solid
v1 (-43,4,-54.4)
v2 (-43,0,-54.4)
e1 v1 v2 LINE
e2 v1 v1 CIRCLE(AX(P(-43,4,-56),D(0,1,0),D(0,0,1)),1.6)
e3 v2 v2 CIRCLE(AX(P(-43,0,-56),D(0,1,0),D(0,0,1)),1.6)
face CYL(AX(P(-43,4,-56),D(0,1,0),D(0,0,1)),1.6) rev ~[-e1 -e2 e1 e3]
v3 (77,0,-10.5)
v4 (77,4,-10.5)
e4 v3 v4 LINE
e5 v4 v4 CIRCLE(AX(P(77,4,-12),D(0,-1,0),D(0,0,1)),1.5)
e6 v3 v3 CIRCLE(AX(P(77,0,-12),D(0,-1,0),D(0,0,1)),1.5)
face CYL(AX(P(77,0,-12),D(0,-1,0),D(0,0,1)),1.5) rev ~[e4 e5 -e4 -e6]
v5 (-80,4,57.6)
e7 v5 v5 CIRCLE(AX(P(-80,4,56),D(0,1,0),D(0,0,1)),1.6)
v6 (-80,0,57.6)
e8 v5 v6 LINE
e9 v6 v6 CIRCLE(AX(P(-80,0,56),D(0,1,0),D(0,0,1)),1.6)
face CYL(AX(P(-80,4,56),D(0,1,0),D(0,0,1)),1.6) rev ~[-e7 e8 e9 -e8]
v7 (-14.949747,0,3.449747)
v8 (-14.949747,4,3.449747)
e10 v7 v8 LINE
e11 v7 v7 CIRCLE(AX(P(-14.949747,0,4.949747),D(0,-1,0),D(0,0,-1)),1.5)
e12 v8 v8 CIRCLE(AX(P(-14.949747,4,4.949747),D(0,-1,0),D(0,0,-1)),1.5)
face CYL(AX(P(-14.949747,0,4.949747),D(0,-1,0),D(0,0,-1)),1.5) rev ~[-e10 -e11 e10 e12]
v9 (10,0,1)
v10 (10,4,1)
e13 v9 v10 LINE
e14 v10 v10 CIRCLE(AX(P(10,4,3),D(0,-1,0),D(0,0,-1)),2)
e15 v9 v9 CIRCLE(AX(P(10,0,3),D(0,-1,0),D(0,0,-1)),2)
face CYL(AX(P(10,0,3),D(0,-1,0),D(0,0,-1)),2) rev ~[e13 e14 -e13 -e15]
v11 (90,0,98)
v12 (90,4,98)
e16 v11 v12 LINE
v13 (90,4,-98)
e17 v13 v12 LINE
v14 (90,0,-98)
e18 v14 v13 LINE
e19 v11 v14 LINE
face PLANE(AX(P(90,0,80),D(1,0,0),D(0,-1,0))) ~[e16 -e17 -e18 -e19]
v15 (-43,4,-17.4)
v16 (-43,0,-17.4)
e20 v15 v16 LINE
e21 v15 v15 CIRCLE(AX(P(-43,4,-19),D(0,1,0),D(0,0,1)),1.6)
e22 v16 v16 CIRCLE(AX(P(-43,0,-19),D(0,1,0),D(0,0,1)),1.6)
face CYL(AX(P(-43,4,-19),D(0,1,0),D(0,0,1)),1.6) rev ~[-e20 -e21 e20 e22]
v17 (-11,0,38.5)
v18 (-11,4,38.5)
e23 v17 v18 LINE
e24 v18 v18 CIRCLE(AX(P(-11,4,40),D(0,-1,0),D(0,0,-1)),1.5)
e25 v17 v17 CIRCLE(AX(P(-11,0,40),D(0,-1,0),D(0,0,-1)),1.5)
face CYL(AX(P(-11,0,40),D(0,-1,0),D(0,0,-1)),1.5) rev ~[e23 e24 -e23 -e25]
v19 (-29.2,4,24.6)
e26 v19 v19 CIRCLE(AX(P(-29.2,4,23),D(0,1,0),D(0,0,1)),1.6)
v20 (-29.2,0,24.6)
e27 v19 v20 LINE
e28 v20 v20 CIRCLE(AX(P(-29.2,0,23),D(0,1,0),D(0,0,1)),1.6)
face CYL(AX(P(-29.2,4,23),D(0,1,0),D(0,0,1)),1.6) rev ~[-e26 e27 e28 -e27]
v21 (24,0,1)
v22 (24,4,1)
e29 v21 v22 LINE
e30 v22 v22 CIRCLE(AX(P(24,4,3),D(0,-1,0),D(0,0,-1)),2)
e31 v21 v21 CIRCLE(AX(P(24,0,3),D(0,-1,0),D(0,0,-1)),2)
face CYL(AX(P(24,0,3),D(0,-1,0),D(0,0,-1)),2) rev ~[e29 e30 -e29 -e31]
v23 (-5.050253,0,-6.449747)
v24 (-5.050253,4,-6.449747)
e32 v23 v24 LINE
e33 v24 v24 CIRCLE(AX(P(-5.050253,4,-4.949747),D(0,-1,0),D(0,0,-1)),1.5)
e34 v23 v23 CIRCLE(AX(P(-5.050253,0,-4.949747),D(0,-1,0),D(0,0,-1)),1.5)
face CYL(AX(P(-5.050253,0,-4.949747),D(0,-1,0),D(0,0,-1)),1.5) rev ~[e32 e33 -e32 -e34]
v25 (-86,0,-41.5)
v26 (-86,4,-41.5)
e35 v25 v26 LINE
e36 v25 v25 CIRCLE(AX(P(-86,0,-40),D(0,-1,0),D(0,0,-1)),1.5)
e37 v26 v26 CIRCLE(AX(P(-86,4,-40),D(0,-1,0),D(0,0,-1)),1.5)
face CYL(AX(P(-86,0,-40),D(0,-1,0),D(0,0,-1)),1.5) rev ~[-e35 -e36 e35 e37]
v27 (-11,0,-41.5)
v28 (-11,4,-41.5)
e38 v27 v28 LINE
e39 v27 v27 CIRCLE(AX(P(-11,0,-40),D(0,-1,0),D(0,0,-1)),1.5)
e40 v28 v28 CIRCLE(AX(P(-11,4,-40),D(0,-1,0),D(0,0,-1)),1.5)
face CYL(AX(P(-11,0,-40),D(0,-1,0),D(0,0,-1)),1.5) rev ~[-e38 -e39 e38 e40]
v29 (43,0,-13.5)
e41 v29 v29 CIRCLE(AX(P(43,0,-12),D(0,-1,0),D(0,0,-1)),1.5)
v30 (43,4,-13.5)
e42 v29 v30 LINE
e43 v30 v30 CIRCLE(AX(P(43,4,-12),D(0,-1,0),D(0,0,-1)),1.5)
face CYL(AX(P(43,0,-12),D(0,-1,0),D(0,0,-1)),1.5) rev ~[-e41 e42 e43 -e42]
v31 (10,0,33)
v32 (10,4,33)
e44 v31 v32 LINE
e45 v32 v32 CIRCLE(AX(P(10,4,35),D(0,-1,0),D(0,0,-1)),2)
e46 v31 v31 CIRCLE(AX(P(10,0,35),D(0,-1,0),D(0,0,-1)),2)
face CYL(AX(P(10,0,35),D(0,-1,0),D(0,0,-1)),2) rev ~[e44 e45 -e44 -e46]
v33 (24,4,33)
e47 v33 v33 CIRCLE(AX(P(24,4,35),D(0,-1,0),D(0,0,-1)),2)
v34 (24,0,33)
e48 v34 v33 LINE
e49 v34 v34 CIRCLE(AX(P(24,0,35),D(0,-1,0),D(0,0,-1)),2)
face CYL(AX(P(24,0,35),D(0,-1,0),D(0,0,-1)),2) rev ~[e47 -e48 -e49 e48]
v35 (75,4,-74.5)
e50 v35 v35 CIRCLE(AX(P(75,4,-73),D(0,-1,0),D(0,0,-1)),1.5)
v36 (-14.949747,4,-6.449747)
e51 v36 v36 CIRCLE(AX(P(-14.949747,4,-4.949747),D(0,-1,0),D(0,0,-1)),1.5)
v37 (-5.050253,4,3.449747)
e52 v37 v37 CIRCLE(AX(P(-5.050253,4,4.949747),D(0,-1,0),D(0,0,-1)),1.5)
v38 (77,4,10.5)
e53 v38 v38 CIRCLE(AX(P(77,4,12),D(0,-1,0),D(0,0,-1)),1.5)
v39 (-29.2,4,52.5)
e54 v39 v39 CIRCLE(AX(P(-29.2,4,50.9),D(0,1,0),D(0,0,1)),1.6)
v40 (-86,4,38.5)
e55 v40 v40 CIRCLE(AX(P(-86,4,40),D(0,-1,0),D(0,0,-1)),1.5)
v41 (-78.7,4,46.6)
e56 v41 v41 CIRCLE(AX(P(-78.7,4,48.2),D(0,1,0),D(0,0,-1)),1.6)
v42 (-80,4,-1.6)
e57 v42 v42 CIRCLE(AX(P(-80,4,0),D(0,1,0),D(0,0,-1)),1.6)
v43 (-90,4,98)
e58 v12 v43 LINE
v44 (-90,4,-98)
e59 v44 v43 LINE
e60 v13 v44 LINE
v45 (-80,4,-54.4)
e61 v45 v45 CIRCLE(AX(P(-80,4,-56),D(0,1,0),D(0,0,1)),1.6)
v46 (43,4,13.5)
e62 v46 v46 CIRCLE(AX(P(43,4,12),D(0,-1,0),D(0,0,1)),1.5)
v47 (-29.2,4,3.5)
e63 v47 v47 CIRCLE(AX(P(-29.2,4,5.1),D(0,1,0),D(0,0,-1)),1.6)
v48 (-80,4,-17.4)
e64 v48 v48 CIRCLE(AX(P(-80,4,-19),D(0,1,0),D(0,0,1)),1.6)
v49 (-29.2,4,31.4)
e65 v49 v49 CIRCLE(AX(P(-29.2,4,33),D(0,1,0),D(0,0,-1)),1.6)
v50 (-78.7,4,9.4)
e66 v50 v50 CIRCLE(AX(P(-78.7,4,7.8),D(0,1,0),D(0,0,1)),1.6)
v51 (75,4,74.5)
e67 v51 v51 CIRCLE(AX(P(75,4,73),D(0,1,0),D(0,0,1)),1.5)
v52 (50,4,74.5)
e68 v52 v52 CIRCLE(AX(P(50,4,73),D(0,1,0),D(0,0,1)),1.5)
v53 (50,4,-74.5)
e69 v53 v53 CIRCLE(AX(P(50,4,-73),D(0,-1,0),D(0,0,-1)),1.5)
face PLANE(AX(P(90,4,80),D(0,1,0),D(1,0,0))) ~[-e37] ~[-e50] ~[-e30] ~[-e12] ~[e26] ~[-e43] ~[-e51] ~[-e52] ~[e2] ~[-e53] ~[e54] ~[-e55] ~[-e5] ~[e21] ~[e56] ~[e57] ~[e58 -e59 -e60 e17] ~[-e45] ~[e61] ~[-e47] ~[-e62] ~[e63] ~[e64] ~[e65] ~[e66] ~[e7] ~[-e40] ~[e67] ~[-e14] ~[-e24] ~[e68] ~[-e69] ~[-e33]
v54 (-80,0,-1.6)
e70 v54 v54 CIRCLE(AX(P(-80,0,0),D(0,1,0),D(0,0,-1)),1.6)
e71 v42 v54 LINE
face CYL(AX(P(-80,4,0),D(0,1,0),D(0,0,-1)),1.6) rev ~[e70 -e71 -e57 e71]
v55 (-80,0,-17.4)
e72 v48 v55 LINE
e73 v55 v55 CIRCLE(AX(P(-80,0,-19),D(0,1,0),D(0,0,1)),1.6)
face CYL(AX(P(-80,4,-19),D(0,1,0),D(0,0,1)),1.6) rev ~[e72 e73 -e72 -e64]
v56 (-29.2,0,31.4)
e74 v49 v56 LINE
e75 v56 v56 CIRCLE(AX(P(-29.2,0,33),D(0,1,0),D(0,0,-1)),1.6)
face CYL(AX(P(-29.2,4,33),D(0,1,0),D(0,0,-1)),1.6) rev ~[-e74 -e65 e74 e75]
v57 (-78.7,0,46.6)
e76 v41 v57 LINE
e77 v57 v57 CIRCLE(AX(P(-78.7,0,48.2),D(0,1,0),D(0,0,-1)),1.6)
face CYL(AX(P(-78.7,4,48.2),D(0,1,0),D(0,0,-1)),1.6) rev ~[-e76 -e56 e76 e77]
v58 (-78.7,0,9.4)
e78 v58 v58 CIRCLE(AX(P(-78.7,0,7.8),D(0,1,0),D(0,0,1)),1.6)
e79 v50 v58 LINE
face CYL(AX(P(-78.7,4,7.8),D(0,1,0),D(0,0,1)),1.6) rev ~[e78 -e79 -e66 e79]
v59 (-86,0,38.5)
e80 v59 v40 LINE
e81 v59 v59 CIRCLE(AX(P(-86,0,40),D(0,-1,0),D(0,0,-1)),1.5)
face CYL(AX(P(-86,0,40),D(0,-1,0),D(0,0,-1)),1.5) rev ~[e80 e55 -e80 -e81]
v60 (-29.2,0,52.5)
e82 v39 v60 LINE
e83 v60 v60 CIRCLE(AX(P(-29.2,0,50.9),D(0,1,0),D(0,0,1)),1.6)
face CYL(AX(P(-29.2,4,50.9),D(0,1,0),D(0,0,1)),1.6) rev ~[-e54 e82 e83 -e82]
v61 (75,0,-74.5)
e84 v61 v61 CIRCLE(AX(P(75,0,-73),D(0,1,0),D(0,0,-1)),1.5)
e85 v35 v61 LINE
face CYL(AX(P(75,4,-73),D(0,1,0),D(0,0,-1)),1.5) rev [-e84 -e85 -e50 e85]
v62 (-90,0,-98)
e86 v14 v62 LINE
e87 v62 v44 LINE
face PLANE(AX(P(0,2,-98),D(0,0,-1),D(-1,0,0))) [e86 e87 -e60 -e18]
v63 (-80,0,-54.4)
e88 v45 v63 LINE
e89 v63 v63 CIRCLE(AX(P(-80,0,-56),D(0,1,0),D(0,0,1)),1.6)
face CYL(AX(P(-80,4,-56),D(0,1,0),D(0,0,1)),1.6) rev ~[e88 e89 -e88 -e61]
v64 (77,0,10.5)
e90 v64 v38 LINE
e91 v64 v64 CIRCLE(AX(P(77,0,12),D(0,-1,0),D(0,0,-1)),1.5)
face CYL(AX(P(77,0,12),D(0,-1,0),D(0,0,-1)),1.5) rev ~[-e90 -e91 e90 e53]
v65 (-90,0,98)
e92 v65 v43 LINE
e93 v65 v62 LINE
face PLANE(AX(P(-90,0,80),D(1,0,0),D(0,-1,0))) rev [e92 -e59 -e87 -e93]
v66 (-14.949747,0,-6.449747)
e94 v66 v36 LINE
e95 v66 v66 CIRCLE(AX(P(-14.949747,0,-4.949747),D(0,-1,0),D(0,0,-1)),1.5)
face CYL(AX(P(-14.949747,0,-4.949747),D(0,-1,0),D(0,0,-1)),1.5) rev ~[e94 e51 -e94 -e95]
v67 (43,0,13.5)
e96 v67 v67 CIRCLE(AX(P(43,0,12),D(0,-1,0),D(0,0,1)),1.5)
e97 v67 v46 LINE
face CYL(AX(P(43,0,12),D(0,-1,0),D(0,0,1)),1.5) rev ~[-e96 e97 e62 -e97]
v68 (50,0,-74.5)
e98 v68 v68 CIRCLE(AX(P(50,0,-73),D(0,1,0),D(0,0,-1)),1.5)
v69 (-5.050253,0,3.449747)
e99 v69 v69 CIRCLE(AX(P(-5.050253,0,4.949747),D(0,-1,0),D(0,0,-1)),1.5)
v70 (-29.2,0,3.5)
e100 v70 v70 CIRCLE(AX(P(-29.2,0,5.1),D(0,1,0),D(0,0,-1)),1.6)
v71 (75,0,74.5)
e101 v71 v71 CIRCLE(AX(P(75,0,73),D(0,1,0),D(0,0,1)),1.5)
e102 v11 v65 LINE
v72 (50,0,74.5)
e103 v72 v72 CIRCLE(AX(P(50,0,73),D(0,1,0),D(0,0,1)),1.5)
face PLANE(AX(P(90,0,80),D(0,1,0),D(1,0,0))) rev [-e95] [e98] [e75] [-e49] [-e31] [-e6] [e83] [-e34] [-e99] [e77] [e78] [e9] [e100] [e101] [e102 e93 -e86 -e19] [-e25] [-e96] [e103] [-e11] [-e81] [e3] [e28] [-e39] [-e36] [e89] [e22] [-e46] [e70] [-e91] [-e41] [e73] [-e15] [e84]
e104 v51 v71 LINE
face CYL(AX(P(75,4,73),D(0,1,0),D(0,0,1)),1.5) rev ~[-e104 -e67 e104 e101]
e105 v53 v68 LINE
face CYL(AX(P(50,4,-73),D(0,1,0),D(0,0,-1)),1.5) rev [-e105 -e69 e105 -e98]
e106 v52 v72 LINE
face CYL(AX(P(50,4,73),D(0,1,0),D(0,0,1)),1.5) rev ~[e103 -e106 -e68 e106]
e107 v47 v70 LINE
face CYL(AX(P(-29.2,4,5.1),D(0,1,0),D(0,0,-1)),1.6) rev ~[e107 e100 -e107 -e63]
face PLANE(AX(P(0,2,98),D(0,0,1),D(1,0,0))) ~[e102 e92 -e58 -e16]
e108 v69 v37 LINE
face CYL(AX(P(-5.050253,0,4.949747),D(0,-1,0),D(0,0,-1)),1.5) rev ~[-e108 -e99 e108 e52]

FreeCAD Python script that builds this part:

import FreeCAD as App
import Part
import Sketcher

V = App.Vector


def add_polygon(sketch, points):
    """Adds a closed chain of lines whose ends are joined by coincident constraints."""
    first, n = sketch.GeometryCount, len(points)
    for a, b in zip(points, points[1:] + points[:1]):
        sketch.addGeometry(Part.LineSegment(App.Vector(*a, 0), App.Vector(*b, 0)), False)
    for i in range(n):
        sketch.addConstraint(Sketcher.Constraint("Coincident", first + i, 2, first + (i + 1) % n, 1))

doc = App.newDocument("Part")
body = doc.addObject("PartDesign::Body", "Body")

# Sketch on XZ plane
sketch1 = body.newObject("Sketcher::SketchObject", "Sketch")
sketch1.AttachmentSupport = (doc.getObject("XZ_Plane"), [""])
sketch1.MapMode = "FlatFace"
add_polygon(sketch1, [(-90, -80), (-90, 80), (90, 80), (90, -80)])  # lines 0-3
sketch1.addConstraint([
    Sketcher.Constraint("Vertical", 0),
    Sketcher.Constraint("Horizontal", 1),
    Sketcher.Constraint("Vertical", 2),
    Sketcher.Constraint("Horizontal", 3),
    Sketcher.Constraint("Symmetric", 0, 2, 2, 2, -1, 1),
    Sketcher.Constraint("DistanceX", 1, 1, 1, 2, 180.0),
    Sketcher.Constraint("DistanceY", 0, 1, 0, 2, 160.0),
])
pad1 = body.newObject("PartDesign::Pad", "Pad")
pad1.Profile = sketch1
pad1.Length = 4
pad1.Reversed = True

# Sketch on XZ plane
sketch2 = body.newObject("Sketcher::SketchObject", "Sketch001")
sketch2.AttachmentSupport = (doc.getObject("XZ_Plane"), [""])
sketch2.MapMode = "FlatFace"
sketch2.AttachmentOffset = App.Placement(V(0, 0, -4), App.Rotation())
sketch2.addGeometry([
    Part.Circle(V(-80, -56, 0), V(0, 0, 1), 1.6),
    Part.Circle(V(-43, -56, 0), V(0, 0, 1), 1.6),
    Part.Circle(V(-43, -19, 0), V(0, 0, 1), 1.6),
    Part.Circle(V(-80, -19, 0), V(0, 0, 1), 1.6),
], False)
sketch2.addConstraint([
    Sketcher.Constraint("Equal", 0, 1),
    Sketcher.Constraint("Equal", 1, 2),
    Sketcher.Constraint("Equal", 2, 3),
    Sketcher.Constraint("Horizontal", 0, 3, 1, 3),
    Sketcher.Constraint("Horizontal", 2, 3, 3, 3),
    Sketcher.Constraint("Vertical", 1, 3, 2, 3),
    Sketcher.Constraint("Vertical", 0, 3, 3, 3),
    Sketcher.Constraint("Diameter", 0, 3.2),
    Sketcher.Constraint("DistanceX", 0, 3, -1, 1, 80.0),
    Sketcher.Constraint("DistanceY", 0, 3, -1, 1, 56.0),
    Sketcher.Constraint("DistanceX", 1, 3, -1, 1, 43.0),
    Sketcher.Constraint("DistanceY", 2, 3, -1, 1, 19.0),
])
pocket1 = body.newObject("PartDesign::Pocket", "Pocket")
pocket1.Profile = sketch2
pocket1.Length = 4
pocket1.Reversed = True

# Sketch on XZ plane
sketch3 = body.newObject("Sketcher::SketchObject", "Sketch002")
sketch3.AttachmentSupport = (doc.getObject("XZ_Plane"), [""])
sketch3.MapMode = "FlatFace"
sketch3.AttachmentOffset = App.Placement(V(0, 0, -4), App.Rotation())
sketch3.addGeometry([
    Part.Circle(V(-78.7, 7.8, 0), V(0, 0, 1), 1.6),  # 0
    Part.Circle(V(-29.2, 23, 0), V(0, 0, 1), 1.6),  # 1
    Part.Circle(V(-29.2, 50.9, 0), V(0, 0, 1), 1.6),  # 2
    Part.Circle(V(-80, 56, 0), V(0, 0, 1), 1.6),  # 3
    Part.Circle(V(-29.2, 5.1, 0), V(0, 0, 1), 1.6),  # 4
    Part.Circle(V(-29.2, 33, 0), V(0, 0, 1), 1.6),  # 5
    Part.Circle(V(-80, 0, 0), V(0, 0, 1), 1.6),  # 6
    Part.Circle(V(-78.7, 48.2, 0), V(0, 0, 1), 1.6),  # 7
], False)
sketch3.addConstraint([
    Sketcher.Constraint("Equal", 0, 1),
    Sketcher.Constraint("Equal", 1, 2),
    Sketcher.Constraint("Equal", 2, 3),
    Sketcher.Constraint("Equal", 3, 4),
    Sketcher.Constraint("Equal", 4, 5),
    Sketcher.Constraint("Equal", 5, 6),
    Sketcher.Constraint("Equal", 6, 7),
    Sketcher.Constraint("PointOnObject", 6, 3, -1),
    Sketcher.Constraint("Vertical", 1, 3, 2, 3),
    Sketcher.Constraint("Vertical", 2, 3, 4, 3),
    Sketcher.Constraint("Vertical", 4, 3, 5, 3),
    Sketcher.Constraint("Vertical", 3, 3, 6, 3),
    Sketcher.Constraint("Vertical", 0, 3, 7, 3),
    Sketcher.Constraint("Diameter", 0, 3.2),
    Sketcher.Constraint("DistanceY", -1, 1, 1, 3, 23.0),
    Sketcher.Constraint("DistanceX", 3, 3, -1, 1, 80.0),
    Sketcher.Constraint("DistanceY", -1, 1, 3, 3, 56.0),
    Sketcher.Constraint("DistanceY", -1, 1, 5, 3, 33.0),
    Sketcher.Constraint("DistanceX", 0, 3, -1, 1, 78.7),
    Sketcher.Constraint("DistanceY", -1, 1, 0, 3, 7.8),
    Sketcher.Constraint("DistanceX", 1, 3, -1, 1, 29.2),
    Sketcher.Constraint("DistanceY", -1, 1, 2, 3, 50.9),
    Sketcher.Constraint("DistanceY", -1, 1, 4, 3, 5.1),
    Sketcher.Constraint("DistanceY", -1, 1, 7, 3, 48.2),
])
pocket2 = body.newObject("PartDesign::Pocket", "Pocket001")
pocket2.Profile = sketch3
pocket2.Length = 4
pocket2.Reversed = True

# Sketch on XZ plane
sketch4 = body.newObject("Sketcher::SketchObject", "Sketch003")
sketch4.AttachmentSupport = (doc.getObject("XZ_Plane"), [""])
sketch4.MapMode = "FlatFace"
sketch4.addGeometry([
    Part.Circle(V(24, 35, 0), V(0, 0, 1), 2),
    Part.Circle(V(10, 35, 0), V(0, 0, 1), 2),
    Part.Circle(V(24, 3, 0), V(0, 0, 1), 2),
    Part.Circle(V(10, 3, 0), V(0, 0, 1), 2),
], False)
sketch4.addConstraint([
    Sketcher.Constraint("Equal", 0, 1),
    Sketcher.Constraint("Equal", 1, 2),
    Sketcher.Constraint("Equal", 2, 3),
    Sketcher.Constraint("Horizontal", 0, 3, 1, 3),
    Sketcher.Constraint("Horizontal", 2, 3, 3, 3),
    Sketcher.Constraint("Vertical", 0, 3, 2, 3),
    Sketcher.Constraint("Vertical", 1, 3, 3, 3),
    Sketcher.Constraint("Diameter", 0, 4.0),
    Sketcher.Constraint("DistanceX", -1, 1, 0, 3, 24.0),
    Sketcher.Constraint("DistanceY", -1, 1, 0, 3, 35.0),
    Sketcher.Constraint("DistanceX", -1, 1, 1, 3, 10.0),
    Sketcher.Constraint("DistanceY", -1, 1, 2, 3, 3.0),
])
pocket3 = body.newObject("PartDesign::Pocket", "Pocket002")
pocket3.Profile = sketch4
pocket3.Length = 10

# Sketch on XZ plane
sketch5 = body.newObject("Sketcher::SketchObject", "Sketch004")
sketch5.AttachmentSupport = (doc.getObject("XZ_Plane"), [""])
sketch5.MapMode = "FlatFace"
sketch5.addGeometry([
    Part.Circle(V(-14.949747, 4.949747, 0), V(0, 0, 1), 1.5),
    Part.Circle(V(-5.050253, 4.949747, 0), V(0, 0, 1), 1.5),
    Part.Circle(V(-14.949747, -4.949747, 0), V(0, 0, 1), 1.5),
    Part.Circle(V(-5.050253, -4.949747, 0), V(0, 0, 1), 1.5),
], False)
sketch5.addConstraint([
    Sketcher.Constraint("Equal", 0, 1),
    Sketcher.Constraint("Equal", 1, 2),
    Sketcher.Constraint("Equal", 2, 3),
    Sketcher.Constraint("Symmetric", 0, 3, 2, 3, -1),
    Sketcher.Constraint("Symmetric", 1, 3, 3, 3, -1),
    Sketcher.Constraint("Horizontal", 0, 3, 1, 3),
    Sketcher.Constraint("Diameter", 0, 3.0),
    Sketcher.Constraint("DistanceX", 0, 3, -1, 1, 14.949747),
    Sketcher.Constraint("DistanceY", -1, 1, 0, 3, 4.949747),
    Sketcher.Constraint("DistanceX", 1, 3, -1, 1, 5.050253),
])
pocket4 = body.newObject("PartDesign::Pocket", "Pocket003")
pocket4.Profile = sketch5
pocket4.Length = 10

# Sketch on XZ plane
sketch6 = body.newObject("Sketcher::SketchObject", "Sketch005")
sketch6.AttachmentSupport = (doc.getObject("XZ_Plane"), [""])
sketch6.MapMode = "FlatFace"
sketch6.addGeometry([
    Part.Circle(V(77, 12, 0), V(0, 0, 1), 1.5),
    Part.Circle(V(43, 12, 0), V(0, 0, 1), 1.5),
    Part.Circle(V(77, -12, 0), V(0, 0, 1), 1.5),
    Part.Circle(V(43, -12, 0), V(0, 0, 1), 1.5),
], False)
sketch6.addConstraint([
    Sketcher.Constraint("Equal", 0, 1),
    Sketcher.Constraint("Equal", 1, 2),
    Sketcher.Constraint("Equal", 2, 3),
    Sketcher.Constraint("Symmetric", 0, 3, 2, 3, -1),
    Sketcher.Constraint("Symmetric", 1, 3, 3, 3, -1),
    Sketcher.Constraint("Horizontal", 0, 3, 1, 3),
    Sketcher.Constraint("Diameter", 0, 3.0),
    Sketcher.Constraint("DistanceX", -1, 1, 0, 3, 77.0),
    Sketcher.Constraint("DistanceY", -1, 1, 0, 3, 12.0),
    Sketcher.Constraint("DistanceX", -1, 1, 1, 3, 43.0),
])
pocket5 = body.newObject("PartDesign::Pocket", "Pocket004")
pocket5.Profile = sketch6
pocket5.Length = 4

# Sketch on XZ plane
sketch7 = body.newObject("Sketcher::SketchObject", "Sketch006")
sketch7.AttachmentSupport = (doc.getObject("XZ_Plane"), [""])
sketch7.MapMode = "FlatFace"
sketch7.addGeometry([
    Part.Circle(V(-86, 40, 0), V(0, 0, 1), 1.5),
    Part.Circle(V(-11, 40, 0), V(0, 0, 1), 1.5),
    Part.Circle(V(-11, -40, 0), V(0, 0, 1), 1.5),
    Part.Circle(V(-86, -40, 0), V(0, 0, 1), 1.5),
], False)
sketch7.addConstraint([
    Sketcher.Constraint("Equal", 0, 1),
    Sketcher.Constraint("Equal", 1, 2),
    Sketcher.Constraint("Equal", 2, 3),
    Sketcher.Constraint("Symmetric", 1, 3, 2, 3, -1),
    Sketcher.Constraint("Symmetric", 0, 3, 3, 3, -1),
    Sketcher.Constraint("Horizontal", 0, 3, 1, 3),
    Sketcher.Constraint("Diameter", 0, 3.0),
    Sketcher.Constraint("DistanceX", 0, 3, -1, 1, 86.0),
    Sketcher.Constraint("DistanceY", -1, 1, 0, 3, 40.0),
    Sketcher.Constraint("DistanceX", 1, 3, -1, 1, 11.0),
])
pocket6 = body.newObject("PartDesign::Pocket", "Pocket005")
pocket6.Profile = sketch7
pocket6.Length = 4

# Sketch on XY plane
sketch8 = body.newObject("Sketcher::SketchObject", "Sketch007")
sketch8.AttachmentSupport = (doc.getObject("XY_Plane"), [""])
sketch8.MapMode = "FlatFace"
sketch8.AttachmentOffset = App.Placement(V(0, 0, -80), App.Rotation())
add_polygon(sketch8, [(90, 4), (90, 0), (-90, 0), (-90, 4)])  # lines 0-3
sketch8.addConstraint([
    Sketcher.Constraint("Vertical", 0),
    Sketcher.Constraint("Horizontal", 1),
    Sketcher.Constraint("Vertical", 2),
    Sketcher.Constraint("Horizontal", 3),
    Sketcher.Constraint("Symmetric", 0, 2, 1, 2, -1, 1),
    Sketcher.Constraint("DistanceX", 1, 2, 1, 1, 180.0),
    Sketcher.Constraint("DistanceY", 0, 2, 0, 1, 4.0),
])
pad2 = body.newObject("PartDesign::Pad", "Pad001")
pad2.Profile = sketch8
pad2.Length = 18
pad2.Reversed = True
doc.recompute()

mirrored = body.newObject("PartDesign::Mirrored", "Mirrored")
mirrored.Originals = [pad2]
mirrored.MirrorPlane = (doc.getObject("XY_Plane"), [""])
body.Tip = mirrored

# Sketch on XZ plane
sketch9 = body.newObject("Sketcher::SketchObject", "Sketch008")
sketch9.AttachmentSupport = (doc.getObject("XZ_Plane"), [""])
sketch9.MapMode = "FlatFace"
sketch9.AttachmentOffset = App.Placement(V(0, 0, -4), App.Rotation())
sketch9.addGeometry([
    Part.Circle(V(75, 73, 0), V(0, 0, 1), 1.5),
    Part.Circle(V(50, 73, 0), V(0, 0, 1), 1.5),
], False)
sketch9.addConstraint([
    Sketcher.Constraint("Equal", 0, 1),
    Sketcher.Constraint("Horizontal", 0, 3, 1, 3),
    Sketcher.Constraint("Diameter", 0, 3.0),
    Sketcher.Constraint("DistanceX", -1, 1, 0, 3, 75.0),
    Sketcher.Constraint("DistanceY", -1, 1, 0, 3, 73.0),
    Sketcher.Constraint("DistanceX", -1, 1, 1, 3, 50.0),
])
pocket7 = body.newObject("PartDesign::Pocket", "Pocket006")
pocket7.Profile = sketch9
pocket7.Type = "ThroughAll"
pocket7.Reversed = True
doc.recompute()

mirrored2 = body.newObject("PartDesign::Mirrored", "Mirrored001")
mirrored2.Originals = [pocket7]
mirrored2.MirrorPlane = (doc.getObject("XY_Plane"), [""])
body.Tip = mirrored2

doc.recompute()
